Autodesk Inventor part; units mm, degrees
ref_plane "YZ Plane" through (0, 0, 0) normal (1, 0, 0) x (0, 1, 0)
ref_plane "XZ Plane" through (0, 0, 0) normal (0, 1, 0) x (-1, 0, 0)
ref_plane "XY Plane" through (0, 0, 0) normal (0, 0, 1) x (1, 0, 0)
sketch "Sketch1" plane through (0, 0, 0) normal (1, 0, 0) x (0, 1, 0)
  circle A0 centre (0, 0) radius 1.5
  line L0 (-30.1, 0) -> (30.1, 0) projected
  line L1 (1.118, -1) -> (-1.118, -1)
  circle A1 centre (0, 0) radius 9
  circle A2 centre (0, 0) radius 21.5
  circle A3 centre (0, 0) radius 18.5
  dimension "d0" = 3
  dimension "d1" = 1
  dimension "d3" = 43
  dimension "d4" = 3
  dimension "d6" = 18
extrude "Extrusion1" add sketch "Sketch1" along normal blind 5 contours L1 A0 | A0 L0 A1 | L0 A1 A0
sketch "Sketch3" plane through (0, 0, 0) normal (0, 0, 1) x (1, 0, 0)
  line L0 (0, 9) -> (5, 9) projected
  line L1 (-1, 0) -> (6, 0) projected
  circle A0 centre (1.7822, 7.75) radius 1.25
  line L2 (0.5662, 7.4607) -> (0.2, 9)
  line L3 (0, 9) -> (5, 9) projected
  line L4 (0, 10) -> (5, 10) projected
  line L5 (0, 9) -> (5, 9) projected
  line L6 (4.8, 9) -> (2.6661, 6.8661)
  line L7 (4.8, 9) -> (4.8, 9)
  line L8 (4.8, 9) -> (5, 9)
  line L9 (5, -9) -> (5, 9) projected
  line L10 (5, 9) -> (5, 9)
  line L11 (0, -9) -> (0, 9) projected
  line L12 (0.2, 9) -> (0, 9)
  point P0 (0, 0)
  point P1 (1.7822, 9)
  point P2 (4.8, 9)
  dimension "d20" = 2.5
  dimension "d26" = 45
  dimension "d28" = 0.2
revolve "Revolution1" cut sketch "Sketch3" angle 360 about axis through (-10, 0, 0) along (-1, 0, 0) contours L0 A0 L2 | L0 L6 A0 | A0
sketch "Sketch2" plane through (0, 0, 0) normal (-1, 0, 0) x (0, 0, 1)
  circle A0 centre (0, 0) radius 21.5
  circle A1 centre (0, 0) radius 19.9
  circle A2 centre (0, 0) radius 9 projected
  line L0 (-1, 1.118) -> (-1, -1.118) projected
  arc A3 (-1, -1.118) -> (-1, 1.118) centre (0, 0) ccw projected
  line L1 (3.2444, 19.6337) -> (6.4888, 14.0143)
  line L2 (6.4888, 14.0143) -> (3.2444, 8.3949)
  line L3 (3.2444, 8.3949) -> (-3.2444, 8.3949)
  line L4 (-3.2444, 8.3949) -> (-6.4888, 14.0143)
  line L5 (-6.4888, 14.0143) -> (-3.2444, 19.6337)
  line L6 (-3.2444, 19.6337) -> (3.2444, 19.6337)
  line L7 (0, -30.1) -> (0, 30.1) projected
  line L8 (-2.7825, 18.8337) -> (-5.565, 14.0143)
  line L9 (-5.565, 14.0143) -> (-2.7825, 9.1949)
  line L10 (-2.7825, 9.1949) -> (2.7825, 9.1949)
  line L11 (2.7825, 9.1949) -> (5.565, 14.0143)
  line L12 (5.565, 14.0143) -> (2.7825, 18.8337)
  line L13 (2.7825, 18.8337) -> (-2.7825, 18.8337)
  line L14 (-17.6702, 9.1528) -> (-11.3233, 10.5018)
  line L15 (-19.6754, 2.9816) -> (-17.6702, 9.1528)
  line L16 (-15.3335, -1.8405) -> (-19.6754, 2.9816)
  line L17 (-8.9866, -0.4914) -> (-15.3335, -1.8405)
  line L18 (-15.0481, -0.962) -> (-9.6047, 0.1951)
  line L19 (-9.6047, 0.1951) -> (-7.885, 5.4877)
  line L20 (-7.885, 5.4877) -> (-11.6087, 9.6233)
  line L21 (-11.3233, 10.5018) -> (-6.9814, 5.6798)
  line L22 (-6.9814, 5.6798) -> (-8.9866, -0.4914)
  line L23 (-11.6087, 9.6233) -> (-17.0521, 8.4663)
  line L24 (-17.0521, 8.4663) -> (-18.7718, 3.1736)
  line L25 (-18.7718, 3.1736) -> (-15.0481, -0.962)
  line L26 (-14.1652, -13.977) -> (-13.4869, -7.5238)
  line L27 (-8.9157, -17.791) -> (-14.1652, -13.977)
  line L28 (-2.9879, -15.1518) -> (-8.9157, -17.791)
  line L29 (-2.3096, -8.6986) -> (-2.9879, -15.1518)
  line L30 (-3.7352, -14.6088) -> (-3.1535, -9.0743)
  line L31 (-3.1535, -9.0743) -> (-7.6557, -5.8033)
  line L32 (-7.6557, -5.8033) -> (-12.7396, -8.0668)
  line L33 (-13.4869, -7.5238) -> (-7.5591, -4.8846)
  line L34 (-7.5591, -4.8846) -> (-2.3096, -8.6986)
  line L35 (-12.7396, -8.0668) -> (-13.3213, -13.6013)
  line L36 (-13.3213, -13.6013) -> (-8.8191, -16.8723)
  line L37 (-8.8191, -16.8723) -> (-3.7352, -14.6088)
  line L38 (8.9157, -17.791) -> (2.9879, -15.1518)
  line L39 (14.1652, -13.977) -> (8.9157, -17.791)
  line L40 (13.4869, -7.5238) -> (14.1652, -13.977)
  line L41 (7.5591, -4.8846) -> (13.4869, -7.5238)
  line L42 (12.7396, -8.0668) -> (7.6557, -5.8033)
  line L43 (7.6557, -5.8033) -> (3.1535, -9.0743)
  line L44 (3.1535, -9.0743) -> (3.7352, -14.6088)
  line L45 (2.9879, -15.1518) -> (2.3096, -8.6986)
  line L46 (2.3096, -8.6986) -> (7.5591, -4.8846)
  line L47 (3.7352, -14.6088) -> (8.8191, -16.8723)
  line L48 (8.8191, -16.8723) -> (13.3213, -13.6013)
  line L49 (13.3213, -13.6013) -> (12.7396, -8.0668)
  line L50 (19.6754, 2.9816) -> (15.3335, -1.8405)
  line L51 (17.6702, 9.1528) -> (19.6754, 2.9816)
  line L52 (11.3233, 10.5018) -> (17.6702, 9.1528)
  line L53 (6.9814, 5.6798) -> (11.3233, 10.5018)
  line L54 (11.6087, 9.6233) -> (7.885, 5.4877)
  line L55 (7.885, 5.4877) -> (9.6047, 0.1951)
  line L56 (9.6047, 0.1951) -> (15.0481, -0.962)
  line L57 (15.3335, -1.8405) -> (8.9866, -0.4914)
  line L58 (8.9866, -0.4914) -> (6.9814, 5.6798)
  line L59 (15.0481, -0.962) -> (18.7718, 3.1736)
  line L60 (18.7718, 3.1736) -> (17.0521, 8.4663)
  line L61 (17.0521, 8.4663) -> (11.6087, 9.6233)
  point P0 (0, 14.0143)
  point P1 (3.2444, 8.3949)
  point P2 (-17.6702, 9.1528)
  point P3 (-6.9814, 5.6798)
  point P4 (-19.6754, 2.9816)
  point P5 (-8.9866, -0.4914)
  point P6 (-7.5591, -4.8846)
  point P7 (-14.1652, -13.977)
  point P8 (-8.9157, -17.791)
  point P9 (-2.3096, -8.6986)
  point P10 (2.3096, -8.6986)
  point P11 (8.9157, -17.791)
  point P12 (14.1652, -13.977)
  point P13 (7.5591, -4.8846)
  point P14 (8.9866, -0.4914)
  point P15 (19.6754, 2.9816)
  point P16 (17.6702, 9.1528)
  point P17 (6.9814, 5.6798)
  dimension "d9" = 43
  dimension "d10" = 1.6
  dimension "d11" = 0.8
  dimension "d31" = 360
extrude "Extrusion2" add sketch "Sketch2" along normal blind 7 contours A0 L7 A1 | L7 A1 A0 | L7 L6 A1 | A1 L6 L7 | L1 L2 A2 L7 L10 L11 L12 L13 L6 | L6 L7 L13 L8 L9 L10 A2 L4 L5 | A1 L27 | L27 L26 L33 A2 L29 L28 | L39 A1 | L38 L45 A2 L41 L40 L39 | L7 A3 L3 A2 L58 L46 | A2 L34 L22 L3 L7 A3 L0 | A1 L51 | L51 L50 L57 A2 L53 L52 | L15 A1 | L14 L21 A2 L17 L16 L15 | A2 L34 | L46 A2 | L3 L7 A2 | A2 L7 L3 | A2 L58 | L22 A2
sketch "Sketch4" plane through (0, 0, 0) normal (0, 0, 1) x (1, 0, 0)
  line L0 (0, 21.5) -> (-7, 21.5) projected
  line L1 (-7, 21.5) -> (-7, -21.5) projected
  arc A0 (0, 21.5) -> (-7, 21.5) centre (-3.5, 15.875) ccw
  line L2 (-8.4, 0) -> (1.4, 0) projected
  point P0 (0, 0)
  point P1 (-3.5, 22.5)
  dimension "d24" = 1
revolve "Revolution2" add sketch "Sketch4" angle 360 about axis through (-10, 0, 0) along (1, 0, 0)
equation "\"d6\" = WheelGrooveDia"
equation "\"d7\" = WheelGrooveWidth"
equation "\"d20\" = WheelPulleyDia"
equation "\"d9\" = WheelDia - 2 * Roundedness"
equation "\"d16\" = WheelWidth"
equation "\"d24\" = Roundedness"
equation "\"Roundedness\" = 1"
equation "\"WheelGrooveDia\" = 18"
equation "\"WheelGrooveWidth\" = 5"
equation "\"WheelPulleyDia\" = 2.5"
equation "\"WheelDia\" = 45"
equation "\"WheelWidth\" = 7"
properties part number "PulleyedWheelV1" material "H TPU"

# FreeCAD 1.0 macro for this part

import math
import FreeCAD as App
import Part
import Sketcher
from FreeCAD import Vector
Q = App.Units.Quantity


def add_polygon(sketch, points):
    """Adds a closed chain of lines whose ends are joined by coincident constraints."""
    first, n = sketch.GeometryCount, len(points)
    for a, b in zip(points, points[1:] + points[:1]):
        sketch.addGeometry(Part.LineSegment(App.Vector(*a, 0), App.Vector(*b, 0)), False)
    for i in range(n):
        sketch.addConstraint(Sketcher.Constraint("Coincident", first + i, 2, first + (i + 1) % n, 1))

doc = App.newDocument("Part")
body = doc.addObject("PartDesign::Body", "Body")

# Sketch on YZ plane
sketch1 = body.newObject("Sketcher::SketchObject", "Sketch")
sketch1.AttachmentSupport = (doc.getObject("YZ_Plane"), [""])
sketch1.MapMode = "FlatFace"
sketch1.addGeometry([
    Part.Circle(Vector(0, 0, 0), Vector(0, 0, 1), 9),
    Part.LineSegment(Vector(1.118, -1, 0), Vector(-1.118, -1, 0)),
    Part.ArcOfCircle(Part.Circle(Vector(0, 0, 0), Vector(0, 0, 1), 1.5), math.radians(-41.81118), math.radians(221.81118)),
], False)
sketch1.addConstraint([
    Sketcher.Constraint("Coincident", 1, 1, 2, 1),
    Sketcher.Constraint("Coincident", 2, 2, 1, 2),
    Sketcher.Constraint("Horizontal", 1),
    Sketcher.Constraint("Coincident", 0, 3, -1, 1),
    Sketcher.Constraint("Coincident", 2, 3, -1, 1),
    Sketcher.Constraint("Diameter", 0, Q("18 mm")),
    Sketcher.Constraint("Radius", 2, Q("1.5 mm")),
    Sketcher.Constraint("DistanceY", 1, 1, -1, 1, Q("1 mm")),
])
pad1 = body.newObject("PartDesign::Pad", "Pad")
pad1.Profile = sketch1
pad1.Length = 5

# Sketch on XY plane
sketch2 = body.newObject("Sketcher::SketchObject", "Sketch001")
sketch2.AttachmentSupport = (doc.getObject("XY_Plane"), [""])
sketch2.MapMode = "FlatFace"
sketch2.addGeometry([
    Part.LineSegment(Vector(0.2, 9, 0), Vector(0.5662, 7.4607, 0)),
    Part.ArcOfCircle(Part.Circle(Vector(1.7822, 7.75, 0), Vector(0, 0, 1), 1.25), math.radians(-166.617482), math.radians(-45)),
    Part.LineSegment(Vector(2.6661, 6.8661, 0), Vector(4.8, 9, 0)),
    Part.LineSegment(Vector(4.8, 9, 0), Vector(0.2, 9, 0)),
], False)
sketch2.addConstraint([
    Sketcher.Constraint("Tangent", 0, 2, 1, 1),
    Sketcher.Constraint("Tangent", 1, 2, 2, 1),
    Sketcher.Constraint("Coincident", 2, 2, 3, 1),
    Sketcher.Constraint("Coincident", 3, 2, 0, 1),
    Sketcher.Constraint("Horizontal", 3),
    Sketcher.Constraint("Angle", 2, Q("45 deg")),
    Sketcher.Constraint("Radius", 1, Q("1.25 mm")),
    Sketcher.Constraint("DistanceX", -1, 1, 3, 2, Q("0.2 mm")),
    Sketcher.Constraint("DistanceX", 3, 2, 3, 1, Q("4.6 mm")),
    Sketcher.Constraint("DistanceY", -1, 1, 2, 2, Q("9 mm")),
    Sketcher.Constraint("DistanceX", 0, 2, 1, 2, Q("2.1 mm")),
])
groove = body.newObject("PartDesign::Groove", "Groove")
groove.Profile = sketch2
groove.ReferenceAxis = (sketch2, ["H_Axis"])
groove.Angle = 360

# Sketch on YZ plane
sketch3 = body.newObject("Sketcher::SketchObject", "Sketch002")
sketch3.AttachmentSupport = (doc.getObject("YZ_Plane"), [""])
sketch3.MapMode = "FlatFace"
sketch3.addGeometry(Part.Circle(Vector(0, 0, 0), Vector(0, 0, 1), 21.5), False)  # 0
sketch3.addGeometry(Part.ArcOfCircle(Part.Circle(Vector(0, 0, 0), Vector(0, 0, 1), 19.9), math.radians(153.382929), math.radians(206.617071)), False)  # 1
sketch3.addGeometry(Part.LineSegment(Vector(-17.791, -8.9157, 0), Vector(-15.1518, -2.9879, 0)), False)  # 2
sketch3.addGeometry(Part.LineSegment(Vector(-15.1518, -2.9879, 0), Vector(-8.6986, -2.3096, 0)), False)  # 3
sketch3.addGeometry(Part.ArcOfCircle(Part.Circle(Vector(0, 0, 0), Vector(0, 0, 1), 9), math.radians(165.130259), math.radians(194.869741)), False)  # 4
sketch3.addGeometry(Part.LineSegment(Vector(-8.6986, 2.3096, 0), Vector(-15.1518, 2.9879, 0)), False)  # 5
sketch3.addGeometry(Part.LineSegment(Vector(-15.1518, 2.9879, 0), Vector(-17.791, 8.9157, 0)), False)  # 6
sketch3.addGeometry(Part.LineSegment(Vector(-13.977, 14.1652, 0), Vector(-7.5238, 13.4869, 0)), False)  # 7
sketch3.addGeometry(Part.LineSegment(Vector(-7.5238, 13.4869, 0), Vector(-4.8846, 7.5591, 0)), False)  # 8
sketch3.addGeometry(Part.ArcOfCircle(Part.Circle(Vector(0, 0, 0), Vector(0, 0, 1), 9), math.radians(93.129897), math.radians(122.870061)), False)  # 9
sketch3.addGeometry(Part.LineSegment(Vector(-0.4914, 8.9866, 0), Vector(-1.8405, 15.3335, 0)), False)  # 10
sketch3.addGeometry(Part.LineSegment(Vector(-1.8405, 15.3335, 0), Vector(2.9816, 19.6754, 0)), False)  # 11
sketch3.addGeometry(Part.ArcOfCircle(Part.Circle(Vector(0, 0, 0), Vector(0, 0, 1), 19.9), math.radians(81.382989), math.radians(134.616842)), False)  # 12
sketch3.addGeometry(Part.ArcOfCircle(Part.Circle(Vector(0, 0, 0), Vector(0, 0, 1), 19.9), math.radians(9.383133), math.radians(62.616773)), False)  # 13
sketch3.addGeometry(Part.LineSegment(Vector(9.1528, 17.6702, 0), Vector(10.5018, 11.3233, 0)), False)  # 14
sketch3.addGeometry(Part.LineSegment(Vector(10.5018, 11.3233, 0), Vector(5.6798, 6.9814, 0)), False)  # 15
sketch3.addGeometry(Part.ArcOfCircle(Part.Circle(Vector(0, 0, 0), Vector(0, 0, 1), 9), math.radians(21.130158), math.radians(50.869517)), False)  # 16
sketch3.addGeometry(Part.LineSegment(Vector(8.3949, 3.2444, 0), Vector(14.0143, 6.4888, 0)), False)  # 17
sketch3.addGeometry(Part.LineSegment(Vector(14.0143, 6.4888, 0), Vector(19.6337, 3.2444, 0)), False)  # 18
sketch3.addGeometry(Part.ArcOfCircle(Part.Circle(Vector(0, 0, 0), Vector(0, 0, 1), 19.9), math.radians(-62.616773), math.radians(-9.383133)), False)  # 19
sketch3.addGeometry(Part.LineSegment(Vector(19.6337, -3.2444, 0), Vector(14.0143, -6.4888, 0)), False)  # 20
sketch3.addGeometry(Part.LineSegment(Vector(14.0143, -6.4888, 0), Vector(8.3949, -3.2444, 0)), False)  # 21
sketch3.addGeometry(Part.ArcOfCircle(Part.Circle(Vector(0, 0, 0), Vector(0, 0, 1), 9), math.radians(-50.869517), math.radians(-21.130158)), False)  # 22
sketch3.addGeometry(Part.LineSegment(Vector(5.6798, -6.9814, 0), Vector(10.5018, -11.3233, 0)), False)  # 23
sketch3.addGeometry(Part.LineSegment(Vector(10.5018, -11.3233, 0), Vector(9.1528, -17.6702, 0)), False)  # 24
sketch3.addGeometry(Part.ArcOfCircle(Part.Circle(Vector(0, 0, 0), Vector(0, 0, 1), 19.9), math.radians(-134.616842), math.radians(-81.382989)), False)  # 25
sketch3.addGeometry(Part.LineSegment(Vector(2.9816, -19.6754, 0), Vector(-1.8405, -15.3335, 0)), False)  # 26
sketch3.addGeometry(Part.LineSegment(Vector(-1.8405, -15.3335, 0), Vector(-0.4914, -8.9866, 0)), False)  # 27
sketch3.addGeometry(Part.ArcOfCircle(Part.Circle(Vector(0, 0, 0), Vector(0, 0, 1), 9), math.radians(-122.870061), math.radians(-93.129897)), False)  # 28
sketch3.addGeometry(Part.LineSegment(Vector(-4.8846, -7.5591, 0), Vector(-7.5238, -13.4869, 0)), False)  # 29
sketch3.addGeometry(Part.LineSegment(Vector(-7.5238, -13.4869, 0), Vector(-13.977, -14.1652, 0)), False)  # 30
add_polygon(sketch3, [(-8.0668, 12.7396), (-13.6013, 13.3213), (-16.8723, 8.8191), (-14.6088, 3.7352), (-9.0743, 3.1535), (-5.8033, 7.6557)])  # lines 31-36
add_polygon(sketch3, [(9.6233, 11.6087), (8.4663, 17.0521), (3.1736, 18.7718), (-0.962, 15.0481), (0.1951, 9.6047), (5.4877, 7.885)])  # lines 37-42
add_polygon(sketch3, [(9.1949, 2.7825), (9.1949, -2.7825), (14.0143, -5.565), (18.8337, -2.7825), (18.8337, 2.7825), (14.0143, 5.565)])  # lines 43-48
add_polygon(sketch3, [(-0.962, -15.0481), (3.1736, -18.7718), (8.4663, -17.0521), (9.6233, -11.6087), (5.4877, -7.885), (0.1951, -9.6047)])  # lines 49-54
add_polygon(sketch3, [(-14.6088, -3.7352), (-16.8723, -8.8191), (-13.6013, -13.3213), (-8.0668, -12.7396), (-5.8033, -7.6557), (-9.0743, -3.1535)])  # lines 55-60
sketch3.addGeometry(Part.LineSegment(Vector(-1.118, -1, 0), Vector(1.118, -1, 0)), False)  # 61
sketch3.addGeometry(Part.ArcOfCircle(Part.Circle(Vector(0, 0, 0), Vector(0, 0, 1), 1.499975), math.radians(-41.81118), math.radians(221.81118)), False)  # 62
sketch3.addConstraint([
    Sketcher.Constraint("Coincident", 1, 2, 2, 1),
    Sketcher.Constraint("Coincident", 2, 2, 3, 1),
    Sketcher.Constraint("Coincident", 3, 2, 4, 2),
    Sketcher.Constraint("Coincident", 4, 1, 5, 1),
    Sketcher.Constraint("Coincident", 5, 2, 6, 1),
    Sketcher.Constraint("Coincident", 6, 2, 1, 1),
    Sketcher.Constraint("Coincident", 7, 2, 8, 1),
    Sketcher.Constraint("Coincident", 8, 2, 9, 2),
    Sketcher.Constraint("Coincident", 9, 1, 10, 1),
    Sketcher.Constraint("Coincident", 10, 2, 11, 1),
    Sketcher.Constraint("Coincident", 11, 2, 12, 1),
    Sketcher.Constraint("Coincident", 12, 2, 7, 1),
    Sketcher.Constraint("Coincident", 13, 2, 14, 1),
    Sketcher.Constraint("Coincident", 14, 2, 15, 1),
    Sketcher.Constraint("Coincident", 15, 2, 16, 2),
    Sketcher.Constraint("Coincident", 16, 1, 17, 1),
    Sketcher.Constraint("Coincident", 17, 2, 18, 1),
    Sketcher.Constraint("Coincident", 18, 2, 13, 1),
    Sketcher.Constraint("Coincident", 19, 2, 20, 1),
    Sketcher.Constraint("Coincident", 20, 2, 21, 1),
    Sketcher.Constraint("Coincident", 21, 2, 22, 2),
    Sketcher.Constraint("Coincident", 22, 1, 23, 1),
    Sketcher.Constraint("Coincident", 23, 2, 24, 1),
    Sketcher.Constraint("Coincident", 24, 2, 19, 1),
    Sketcher.Constraint("Coincident", 25, 2, 26, 1),
    Sketcher.Constraint("Coincident", 26, 2, 27, 1),
    Sketcher.Constraint("Coincident", 27, 2, 28, 2),
    Sketcher.Constraint("Coincident", 28, 1, 29, 1),
    Sketcher.Constraint("Coincident", 29, 2, 30, 1),
    Sketcher.Constraint("Coincident", 30, 2, 25, 1),
    Sketcher.Constraint("Coincident", 61, 1, 62, 2),
    Sketcher.Constraint("Coincident", 62, 1, 61, 2),
    Sketcher.Constraint("Vertical", 43),
    Sketcher.Constraint("Vertical", 46),
    Sketcher.Constraint("Horizontal", 61),
    Sketcher.Constraint("Coincident", 0, 3, -1, 1),
    Sketcher.Constraint("Coincident", 1, 3, -1, 1),
    Sketcher.Constraint("Coincident", 4, 3, -1, 1),
    Sketcher.Constraint("Coincident", 9, 3, -1, 1),
    Sketcher.Constraint("Coincident", 12, 3, -1, 1),
    Sketcher.Constraint("Coincident", 13, 3, -1, 1),
    Sketcher.Constraint("Coincident", 16, 3, -1, 1),
    Sketcher.Constraint("Coincident", 19, 3, -1, 1),
    Sketcher.Constraint("Coincident", 22, 3, -1, 1),
    Sketcher.Constraint("Coincident", 25, 3, -1, 1),
    Sketcher.Constraint("Coincident", 28, 3, -1, 1),
    Sketcher.Constraint("Coincident", 62, 3, -1, 1),
    Sketcher.Constraint("Equal", 4, 9),
    Sketcher.Constraint("Equal", 1, 12),
    Sketcher.Constraint("Equal", 12, 13),
    Sketcher.Constraint("Equal", 9, 16),
    Sketcher.Constraint("Equal", 13, 19),
    Sketcher.Constraint("Equal", 16, 22),
    Sketcher.Constraint("Equal", 19, 25),
    Sketcher.Constraint("Equal", 22, 28),
    Sketcher.Constraint("Symmetric", 2, 2, 5, 2, -1),
    Sketcher.Constraint("Symmetric", 17, 2, 20, 2, -1),
    Sketcher.Constraint("Symmetric", 14, 2, 23, 2, -1),
    Sketcher.Constraint("Symmetric", 10, 2, 26, 2, -1),
    Sketcher.Constraint("Symmetric", 7, 2, 29, 2, -1),
    Sketcher.Constraint("Symmetric", 44, 2, 47, 2, -1),
    Sketcher.Constraint("Symmetric", 38, 2, 49, 2, -1),
    Sketcher.Constraint("Symmetric", 37, 2, 50, 2, -1),
    Sketcher.Constraint("Symmetric", 42, 2, 51, 2, -1),
    Sketcher.Constraint("Symmetric", 41, 2, 52, 2, -1),
    Sketcher.Constraint("Symmetric", 40, 2, 53, 2, -1),
    Sketcher.Constraint("Symmetric", 39, 2, 54, 2, -1),
    Sketcher.Constraint("Symmetric", 32, 2, 55, 2, -1),
    Sketcher.Constraint("Symmetric", 31, 2, 56, 2, -1),
    Sketcher.Constraint("Symmetric", 36, 2, 57, 2, -1),
    Sketcher.Constraint("Symmetric", 35, 2, 58, 2, -1),
    Sketcher.Constraint("Symmetric", 34, 2, 59, 2, -1),
    Sketcher.Constraint("Symmetric", 33, 2, 60, 2, -1),
    Sketcher.Constraint("Parallel", 5, 7),
    Sketcher.Constraint("Parallel", 6, 8),
    Sketcher.Constraint("Parallel", 10, 14),
    Sketcher.Constraint("Parallel", 11, 15),
    Sketcher.Constraint("Parallel", 17, 20),
    Sketcher.Constraint("Parallel", 18, 21),
    Sketcher.Constraint("Parallel", 23, 26),
    Sketcher.Constraint("Parallel", 24, 27),
    Sketcher.Constraint("Parallel", 2, 29),
    Sketcher.Constraint("Parallel", 3, 30),
    Sketcher.Constraint("Parallel", 7, 31),
    Sketcher.Constraint("Parallel", 8, 33),
    Sketcher.Constraint("Parallel", 31, 34),
    Sketcher.Constraint("Parallel", 32, 35),
    Sketcher.Constraint("Parallel", 33, 36),
    Sketcher.Constraint("Parallel", 14, 37),
    Sketcher.Constraint("Parallel", 15, 39),
    Sketcher.Constraint("Parallel", 37, 40),
    Sketcher.Constraint("Parallel", 38, 41),
    Sketcher.Constraint("Parallel", 39, 42),
    Sketcher.Constraint("Parallel", 21, 44),
    Sketcher.Constraint("Parallel", 20, 45),
    Sketcher.Constraint("Parallel", 44, 47),
    Sketcher.Constraint("Parallel", 45, 48),
    Sketcher.Constraint("Parallel", 26, 49),
    Sketcher.Constraint("Parallel", 27, 51),
    Sketcher.Constraint("Parallel", 29, 55),
    Sketcher.Constraint("Parallel", 30, 57),
    Sketcher.Constraint("Horizontal", 16, 1, 18, 2),
    Sketcher.Constraint("Horizontal", 19, 2, 21, 2),
    Sketcher.Constraint("Horizontal", 43, 2, 45, 2),
    Sketcher.Constraint("Vertical", 20, 2, 44, 2),
    Sketcher.Constraint("Equal", 2, 3),
    Sketcher.Constraint("Equal", 6, 7),
    Sketcher.Constraint("Equal", 7, 8),
    Sketcher.Constraint("Equal", 8, 10),
    Sketcher.Constraint("Equal", 10, 11),
    Sketcher.Constraint("Equal", 11, 14),
    Sketcher.Constraint("Equal", 14, 15),
    Sketcher.Constraint("Equal", 15, 17),
    Sketcher.Constraint("Equal", 31, 32),
    Sketcher.Constraint("Equal", 32, 33),
    Sketcher.Constraint("Equal", 33, 34),
    Sketcher.Constraint("Equal", 36, 37),
    Sketcher.Constraint("Equal", 37, 38),
    Sketcher.Constraint("Equal", 38, 39),
    Sketcher.Constraint("Equal", 39, 40),
    Sketcher.Constraint("Equal", 42, 44),
    Sketcher.Constraint("Diameter", 0, Q("43 mm")),
    Sketcher.Constraint("Radius", 4, Q("9 mm")),
    Sketcher.Constraint("Radius", 1, Q("19.9 mm")),
    Sketcher.Constraint("Radius", 62, Q("1.5 mm")),
    Sketcher.Constraint("Angle", 2, Q("66.0002 deg")),
    Sketcher.Constraint("Angle", 3, Q("6.0004 deg")),
    Sketcher.Constraint("Angle", 10, Q("102.0002 deg")),
    Sketcher.Constraint("Angle", 11, Q("42.0004 deg")),
    Sketcher.Constraint("Angle", 17, Q("30.0003 deg")),
    Sketcher.Constraint("Angle", 32, Q("-125.9997 deg")),
    Sketcher.Constraint("Angle", 38, Q("162 deg")),
    Sketcher.Constraint("DistanceY", 61, 1, -1, 1, Q("1 mm")),
    Sketcher.Constraint("DistanceY", 43, 2, 43, 1, Q("5.565 mm")),
    Sketcher.Constraint("Distance", 31, Q("5.565 mm")),
    Sketcher.Constraint("DistanceX", 1, 2, -1, 1, Q("17.791 mm")),
    Sketcher.Constraint("DistanceY", -1, 1, 32, 2, Q("8.819 mm")),
    Sketcher.Constraint("DistanceY", -1, 1, 37, 2, Q("17.052 mm")),
    Sketcher.Constraint("DistanceX", 39, 2, -1, 1, Q("0.962 mm")),
    Sketcher.Constraint("DistanceX", 31, 2, -1, 1, Q("13.6013 mm")),
])
pad2 = body.newObject("PartDesign::Pad", "Pad001")
pad2.Profile = sketch3
pad2.Length = 7
pad2.Reversed = True

# Sketch on XY plane
sketch4 = body.newObject("Sketcher::SketchObject", "Sketch003")
sketch4.AttachmentSupport = (doc.getObject("XY_Plane"), [""])
sketch4.MapMode = "FlatFace"
sketch4.addGeometry([
    Part.LineSegment(Vector(-7, 21.5, 0), Vector(0, 21.5, 0)),
    Part.ArcOfCircle(Part.Circle(Vector(-3.5, 15.875, 0), Vector(0, 0, 1), 6.625), math.radians(58.109208), math.radians(121.890792)),
], False)
sketch4.addConstraint([
    Sketcher.Constraint("Coincident", 0, 1, 1, 2),
    Sketcher.Constraint("Coincident", 1, 1, 0, 2),
    Sketcher.Constraint("Horizontal", 0),
    Sketcher.Constraint("PointOnObject", 1, 1, -2),
    Sketcher.Constraint("DistanceX", 0, 1, 0, 2, Q("7 mm")),
    Sketcher.Constraint("Radius", 1, Q("6.625 mm")),
    Sketcher.Constraint("DistanceY", -1, 1, 0, 1, Q("21.5 mm")),
])
revolution = body.newObject("PartDesign::Revolution", "Revolution")
revolution.Profile = sketch4
revolution.ReferenceAxis = (sketch4, ["H_Axis"])
revolution.Angle = 360

doc.recompute()
